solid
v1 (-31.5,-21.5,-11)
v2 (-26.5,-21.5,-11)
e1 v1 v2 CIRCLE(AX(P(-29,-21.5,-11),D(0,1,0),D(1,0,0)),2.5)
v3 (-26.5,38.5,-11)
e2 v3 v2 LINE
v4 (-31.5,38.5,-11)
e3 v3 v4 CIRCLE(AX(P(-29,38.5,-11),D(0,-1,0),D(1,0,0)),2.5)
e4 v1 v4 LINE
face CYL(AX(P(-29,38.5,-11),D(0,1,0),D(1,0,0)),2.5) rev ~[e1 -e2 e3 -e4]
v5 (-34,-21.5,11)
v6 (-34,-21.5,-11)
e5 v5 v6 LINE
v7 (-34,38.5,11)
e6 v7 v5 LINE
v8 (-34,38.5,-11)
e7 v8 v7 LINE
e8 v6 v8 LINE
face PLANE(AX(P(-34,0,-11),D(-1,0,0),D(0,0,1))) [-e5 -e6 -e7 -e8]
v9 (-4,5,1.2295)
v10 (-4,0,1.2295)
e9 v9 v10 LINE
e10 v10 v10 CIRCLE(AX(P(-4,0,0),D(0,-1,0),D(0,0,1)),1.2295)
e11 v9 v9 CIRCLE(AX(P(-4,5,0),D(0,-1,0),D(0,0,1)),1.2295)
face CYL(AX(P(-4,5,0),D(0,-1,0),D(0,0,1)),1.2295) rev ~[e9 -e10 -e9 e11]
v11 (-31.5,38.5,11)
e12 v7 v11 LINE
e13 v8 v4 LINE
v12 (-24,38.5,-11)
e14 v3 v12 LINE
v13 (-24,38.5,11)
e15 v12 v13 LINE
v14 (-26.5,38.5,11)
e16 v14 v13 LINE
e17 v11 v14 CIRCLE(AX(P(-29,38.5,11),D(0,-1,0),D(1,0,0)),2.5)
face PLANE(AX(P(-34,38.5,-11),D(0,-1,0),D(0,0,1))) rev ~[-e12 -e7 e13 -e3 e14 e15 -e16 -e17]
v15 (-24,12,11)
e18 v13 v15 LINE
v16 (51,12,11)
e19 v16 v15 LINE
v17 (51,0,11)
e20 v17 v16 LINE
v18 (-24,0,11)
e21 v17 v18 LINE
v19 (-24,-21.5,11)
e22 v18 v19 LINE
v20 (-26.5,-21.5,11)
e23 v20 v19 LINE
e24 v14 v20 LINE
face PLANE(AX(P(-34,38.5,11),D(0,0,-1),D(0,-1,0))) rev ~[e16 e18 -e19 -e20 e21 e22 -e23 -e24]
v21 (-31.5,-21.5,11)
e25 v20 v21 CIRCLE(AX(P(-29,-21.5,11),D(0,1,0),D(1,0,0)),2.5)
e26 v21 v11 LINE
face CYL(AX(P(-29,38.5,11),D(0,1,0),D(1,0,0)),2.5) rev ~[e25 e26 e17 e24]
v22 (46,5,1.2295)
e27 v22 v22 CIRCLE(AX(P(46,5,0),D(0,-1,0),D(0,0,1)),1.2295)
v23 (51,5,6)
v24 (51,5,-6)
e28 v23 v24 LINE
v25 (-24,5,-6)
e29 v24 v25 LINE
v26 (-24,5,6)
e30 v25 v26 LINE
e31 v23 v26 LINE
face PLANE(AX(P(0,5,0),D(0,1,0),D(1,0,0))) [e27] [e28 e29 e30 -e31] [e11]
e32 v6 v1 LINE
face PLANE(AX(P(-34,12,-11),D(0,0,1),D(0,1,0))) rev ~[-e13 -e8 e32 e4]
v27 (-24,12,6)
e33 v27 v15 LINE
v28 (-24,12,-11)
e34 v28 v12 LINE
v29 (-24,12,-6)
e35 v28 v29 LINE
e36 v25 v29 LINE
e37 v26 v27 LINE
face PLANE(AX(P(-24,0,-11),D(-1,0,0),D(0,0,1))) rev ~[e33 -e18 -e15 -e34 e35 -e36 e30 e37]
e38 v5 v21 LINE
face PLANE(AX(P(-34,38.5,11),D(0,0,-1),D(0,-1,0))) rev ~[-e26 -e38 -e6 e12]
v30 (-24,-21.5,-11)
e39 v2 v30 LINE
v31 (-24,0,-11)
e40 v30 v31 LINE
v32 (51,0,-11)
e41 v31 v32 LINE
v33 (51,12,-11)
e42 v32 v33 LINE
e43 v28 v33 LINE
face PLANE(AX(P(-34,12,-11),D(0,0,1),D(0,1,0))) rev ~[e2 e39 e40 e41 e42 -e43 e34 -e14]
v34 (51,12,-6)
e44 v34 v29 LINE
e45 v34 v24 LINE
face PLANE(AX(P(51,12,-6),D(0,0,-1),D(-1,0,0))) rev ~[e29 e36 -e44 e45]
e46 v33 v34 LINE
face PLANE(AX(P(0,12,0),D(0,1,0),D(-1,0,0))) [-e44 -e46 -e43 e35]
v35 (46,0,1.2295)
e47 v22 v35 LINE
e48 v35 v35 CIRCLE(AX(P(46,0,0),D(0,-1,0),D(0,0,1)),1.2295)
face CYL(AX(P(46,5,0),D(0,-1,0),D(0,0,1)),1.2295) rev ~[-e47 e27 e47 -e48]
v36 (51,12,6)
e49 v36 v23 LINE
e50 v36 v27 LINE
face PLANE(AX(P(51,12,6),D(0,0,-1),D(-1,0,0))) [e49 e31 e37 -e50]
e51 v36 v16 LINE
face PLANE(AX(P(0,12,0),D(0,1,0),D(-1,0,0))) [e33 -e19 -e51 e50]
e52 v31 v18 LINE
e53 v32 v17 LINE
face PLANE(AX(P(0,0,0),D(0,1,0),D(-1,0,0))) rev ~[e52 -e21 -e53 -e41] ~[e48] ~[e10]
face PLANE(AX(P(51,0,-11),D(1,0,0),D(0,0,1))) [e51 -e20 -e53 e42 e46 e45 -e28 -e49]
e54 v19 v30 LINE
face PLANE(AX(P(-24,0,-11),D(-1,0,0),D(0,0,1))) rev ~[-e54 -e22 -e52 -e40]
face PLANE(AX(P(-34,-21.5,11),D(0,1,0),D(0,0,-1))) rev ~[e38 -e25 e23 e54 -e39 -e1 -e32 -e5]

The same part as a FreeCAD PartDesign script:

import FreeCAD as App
import Part
import Sketcher

doc = App.newDocument("Part")
body = doc.addObject("PartDesign::Body", "Body")

# Sketch on XZ plane
sketch1 = body.newObject("Sketcher::SketchObject", "Sketch")
sketch1.AttachmentSupport = (doc.getObject("XZ_Plane"), [""])
sketch1.MapMode = "FlatFace"
sketch1.addGeometry(Part.LineSegment(App.Vector(51, -11, 0), App.Vector(-34, -11, 0)), False)
sketch1.addGeometry(Part.LineSegment(App.Vector(-34, -11, 0), App.Vector(-34, 11, 0)), False)
sketch1.addGeometry(Part.LineSegment(App.Vector(-34, 11, 0), App.Vector(51, 11, 0)), False)
sketch1.addGeometry(Part.LineSegment(App.Vector(51, 11, 0), App.Vector(51, -11, 0)), False)
sketch1.addConstraint(Sketcher.Constraint("Coincident", 0, 2, 1, 1))
sketch1.addConstraint(Sketcher.Constraint("Coincident", 1, 2, 2, 1))
sketch1.addConstraint(Sketcher.Constraint("Coincident", 2, 2, 3, 1))
sketch1.addConstraint(Sketcher.Constraint("Coincident", 3, 2, 0, 1))
sketch1.addConstraint(Sketcher.Constraint("Horizontal", 0))
sketch1.addConstraint(Sketcher.Constraint("Vertical", 1))
sketch1.addConstraint(Sketcher.Constraint("Horizontal", 2))
sketch1.addConstraint(Sketcher.Constraint("Vertical", 3))
sketch1.addConstraint(Sketcher.Constraint("DistanceX", 0, 2, 0, 1, 85.0))
sketch1.addConstraint(Sketcher.Constraint("DistanceY", 1, 1, 1, 2, 22.0))
sketch1.addConstraint(Sketcher.Constraint("DistanceX", 0, 2, -1, 1, 34.0))
sketch1.addConstraint(Sketcher.Constraint("DistanceY", 0, 2, -1, 1, 11.0))
pad1 = body.newObject("PartDesign::Pad", "Pad")
pad1.Profile = sketch1
pad1.Length = 12
pad1.Reversed = True

# Sketch on XZ plane
sketch2 = body.newObject("Sketcher::SketchObject", "Sketch001")
sketch2.AttachmentSupport = (doc.getObject("XZ_Plane"), [""])
sketch2.MapMode = "FlatFace"
sketch2.AttachmentOffset = App.Placement(App.Vector(0, 0, -12), App.Rotation())
sketch2.addGeometry(Part.LineSegment(App.Vector(51, -6, 0), App.Vector(-34, -6, 0)), False)
sketch2.addGeometry(Part.LineSegment(App.Vector(-34, -6, 0), App.Vector(-34, 6, 0)), False)
sketch2.addGeometry(Part.LineSegment(App.Vector(-34, 6, 0), App.Vector(51, 6, 0)), False)
sketch2.addGeometry(Part.LineSegment(App.Vector(51, 6, 0), App.Vector(51, -6, 0)), False)
sketch2.addConstraint(Sketcher.Constraint("Coincident", 0, 2, 1, 1))
sketch2.addConstraint(Sketcher.Constraint("Coincident", 1, 2, 2, 1))
sketch2.addConstraint(Sketcher.Constraint("Coincident", 2, 2, 3, 1))
sketch2.addConstraint(Sketcher.Constraint("Coincident", 3, 2, 0, 1))
sketch2.addConstraint(Sketcher.Constraint("Horizontal", 0))
sketch2.addConstraint(Sketcher.Constraint("Vertical", 1))
sketch2.addConstraint(Sketcher.Constraint("Horizontal", 2))
sketch2.addConstraint(Sketcher.Constraint("Vertical", 3))
sketch2.addConstraint(Sketcher.Constraint("DistanceY", 1, 1, 1, 2, 12.0))
sketch2.addConstraint(Sketcher.Constraint("DistanceX", 0, 2, 0, 1, 85.0))
sketch2.addConstraint(Sketcher.Constraint("DistanceX", 0, 2, -1, 1, 34.0))
sketch2.addConstraint(Sketcher.Constraint("DistanceY", 0, 2, -1, 1, 6.0))
pocket1 = body.newObject("PartDesign::Pocket", "Pocket")
pocket1.Profile = sketch2
pocket1.Length = 7
pocket1.Reversed = True

# Sketch on XZ plane
sketch3 = body.newObject("Sketcher::SketchObject", "Sketch002")
sketch3.AttachmentSupport = (doc.getObject("XZ_Plane"), [""])
sketch3.MapMode = "FlatFace"
sketch3.AttachmentOffset = App.Placement(App.Vector(0, 0, -5), App.Rotation())
sketch3.addGeometry(Part.Circle(App.Vector(-4, 0, 0), App.Vector(0, 0, 1), 1.2), False)
sketch3.addGeometry(Part.Circle(App.Vector(46, 0, 0), App.Vector(0, 0, 1), 1.2), False)
sketch3.addConstraint(Sketcher.Constraint("Equal", 0, 1))
sketch3.addConstraint(Sketcher.Constraint("PointOnObject", 0, 3, -1))
sketch3.addConstraint(Sketcher.Constraint("PointOnObject", 1, 3, -1))
sketch3.addConstraint(Sketcher.Constraint("Diameter", 0, 2.459))
sketch3.addConstraint(Sketcher.Constraint("DistanceX", 0, 3, -1, 1, 4.0))
sketch3.addConstraint(Sketcher.Constraint("DistanceX", -1, 1, 1, 3, 46.0))
doc.recompute()
hole = body.newObject("PartDesign::Hole", "Hole")
hole.Profile = sketch3
hole.ThreadType = "None"
hole.Diameter = 2.459
hole.DepthType = "ThroughAll"
hole.Reversed = True

# Sketch on YZ plane
sketch4 = body.newObject("Sketcher::SketchObject", "Sketch003")
sketch4.AttachmentSupport = (doc.getObject("YZ_Plane"), [""])
sketch4.MapMode = "FlatFace"
sketch4.AttachmentOffset = App.Placement(App.Vector(0, 0, -34), App.Rotation())
sketch4.addGeometry(Part.LineSegment(App.Vector(38, 11, 0), App.Vector(38, -11, 0)), False)
sketch4.addGeometry(Part.LineSegment(App.Vector(38, -11, 0), App.Vector(-22, -11, 0)), False)
sketch4.addGeometry(Part.LineSegment(App.Vector(-22, -11, 0), App.Vector(-22, 11, 0)), False)
sketch4.addGeometry(Part.LineSegment(App.Vector(-22, 11, 0), App.Vector(38, 11, 0)), False)
sketch4.addConstraint(Sketcher.Constraint("Coincident", 0, 2, 1, 1))
sketch4.addConstraint(Sketcher.Constraint("Coincident", 1, 2, 2, 1))
sketch4.addConstraint(Sketcher.Constraint("Coincident", 2, 2, 3, 1))
sketch4.addConstraint(Sketcher.Constraint("Coincident", 3, 2, 0, 1))
sketch4.addConstraint(Sketcher.Constraint("Vertical", 0))
sketch4.addConstraint(Sketcher.Constraint("Horizontal", 1))
sketch4.addConstraint(Sketcher.Constraint("Vertical", 2))
sketch4.addConstraint(Sketcher.Constraint("Horizontal", 3))
sketch4.addConstraint(Sketcher.Constraint("DistanceX", 1, 2, 1, 1, 60.0))
sketch4.addConstraint(Sketcher.Constraint("DistanceY", 0, 2, 0, 1, 22.0))
sketch4.addConstraint(Sketcher.Constraint("DistanceY", 0, 2, -1, 1, 11.0))
sketch4.addConstraint(Sketcher.Constraint("DistanceX", -1, 1, 0, 2, 38.5))
pad2 = body.newObject("PartDesign::Pad", "Pad001")
pad2.Profile = sketch4
pad2.Length = 10

# Sketch on XZ plane
sketch5 = body.newObject("Sketcher::SketchObject", "Sketch004")
sketch5.AttachmentSupport = (doc.getObject("XZ_Plane"), [""])
sketch5.MapMode = "FlatFace"
sketch5.AttachmentOffset = App.Placement(App.Vector(0, 0, -38.5), App.Rotation())
sketch5.addGeometry(Part.Circle(App.Vector(-29, -11, 0), App.Vector(0, 0, 1), 2.5), False)
sketch5.addGeometry(Part.Circle(App.Vector(-29, 11, 0), App.Vector(0, 0, 1), 2.5), False)
sketch5.addConstraint(Sketcher.Constraint("Equal", 0, 1))
sketch5.addConstraint(Sketcher.Constraint("Symmetric", 0, 3, 1, 3, -1))
sketch5.addConstraint(Sketcher.Constraint("Diameter", 0, 5.0))
sketch5.addConstraint(Sketcher.Constraint("DistanceX", 0, 3, -1, 1, 29.0))
sketch5.addConstraint(Sketcher.Constraint("DistanceY", 0, 3, -1, 1, 11.0))
pocket2 = body.newObject("PartDesign::Pocket", "Pocket001")
pocket2.Profile = sketch5
pocket2.Type = "ThroughAll"
pocket2.Reversed = True

doc.recompute()
